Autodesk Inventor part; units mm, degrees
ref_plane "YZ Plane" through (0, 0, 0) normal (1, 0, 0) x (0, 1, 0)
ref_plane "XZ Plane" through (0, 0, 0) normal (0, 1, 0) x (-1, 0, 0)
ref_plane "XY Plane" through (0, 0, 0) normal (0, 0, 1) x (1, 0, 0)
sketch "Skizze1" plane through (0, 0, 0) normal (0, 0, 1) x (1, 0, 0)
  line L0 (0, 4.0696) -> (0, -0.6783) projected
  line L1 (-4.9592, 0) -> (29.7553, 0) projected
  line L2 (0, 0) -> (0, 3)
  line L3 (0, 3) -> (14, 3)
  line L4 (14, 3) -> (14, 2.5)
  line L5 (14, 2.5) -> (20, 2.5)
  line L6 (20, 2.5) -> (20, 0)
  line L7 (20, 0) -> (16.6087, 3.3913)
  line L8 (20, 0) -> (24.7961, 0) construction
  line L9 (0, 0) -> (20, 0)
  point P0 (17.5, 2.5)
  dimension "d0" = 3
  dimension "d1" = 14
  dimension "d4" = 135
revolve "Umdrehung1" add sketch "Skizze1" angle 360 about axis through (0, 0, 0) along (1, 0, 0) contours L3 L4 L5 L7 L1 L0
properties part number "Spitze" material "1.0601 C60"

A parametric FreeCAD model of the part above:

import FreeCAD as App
import Part
import Sketcher

V = App.Vector
Q = App.Units.Quantity

doc = App.newDocument("Part")
params = doc.addObject("Spreadsheet::Sheet", "Params")
for row, (alias, value) in enumerate([
    ("sketch1_width", "14 mm"),
    ("sketch1_height", "3 mm"),
    ("sketch1_width2", "20 mm"),
    ("sketch1_width3", "3.5 mm"),
    ("revolution_angle", "360 deg"),
], start=1):
    params.set(f"A{row}", alias)
    params.set(f"B{row}", "=" + value)
    params.setAlias(f"B{row}", alias)

body = doc.addObject("PartDesign::Body", "Body")

sketch1 = doc.addObject("Sketcher::SketchObject", "Sketch")
body.addObject(sketch1)
sketch1.AttachmentSupport = (doc.XY_Plane, [""])
sketch1.MapMode = "FlatFace"
sketch1.addGeometry(Part.LineSegment(V(14, 3, 0), V(0, 3, 0)), False)
sketch1.addGeometry(Part.LineSegment(V(0, 3, 0), V(0, 0, 0)), False)
sketch1.addGeometry(Part.LineSegment(V(0, 0, 0), V(20, 0, 0)), False)
sketch1.addGeometry(Part.LineSegment(V(20, 0, 0), V(17.5, 2.5, 0)), False)
sketch1.addGeometry(Part.LineSegment(V(17.5, 2.5, 0), V(14, 2.5, 0)), False)
sketch1.addGeometry(Part.LineSegment(V(14, 2.5, 0), V(14, 3, 0)), False)
sketch1.addConstraint(Sketcher.Constraint("Coincident", 0, 2, 1, 1))
sketch1.addConstraint(Sketcher.Constraint("Coincident", 1, 2, 2, 1))
sketch1.addConstraint(Sketcher.Constraint("Coincident", 2, 2, 3, 1))
sketch1.addConstraint(Sketcher.Constraint("Coincident", 3, 2, 4, 1))
sketch1.addConstraint(Sketcher.Constraint("Coincident", 4, 2, 5, 1))
sketch1.addConstraint(Sketcher.Constraint("Coincident", 5, 2, 0, 1))
sketch1.addConstraint(Sketcher.Constraint("Horizontal", 0))
sketch1.addConstraint(Sketcher.Constraint("Vertical", 1))
sketch1.addConstraint(Sketcher.Constraint("Horizontal", 2))
sketch1.addConstraint(Sketcher.Constraint("Horizontal", 4))
sketch1.addConstraint(Sketcher.Constraint("Vertical", 5))
sketch1.addConstraint(Sketcher.Constraint("Coincident", 1, 2, -1, 1))
sketch1.addConstraint(Sketcher.Constraint("DistanceX", 0, 2, 0, 1, 14.0))
sketch1.addConstraint(Sketcher.Constraint("DistanceY", 1, 2, 1, 1, 3.0))
sketch1.addConstraint(Sketcher.Constraint("Angle", 3, Q("135 deg")))
sketch1.addConstraint(Sketcher.Constraint("DistanceX", 2, 1, 2, 2, 20.0))
sketch1.addConstraint(Sketcher.Constraint("DistanceX", 4, 2, 4, 1, 3.5))
sketch1.setExpression("Constraints[12]", "Params.sketch1_width")
sketch1.setExpression("Constraints[13]", "Params.sketch1_height")
sketch1.setExpression("Constraints[15]", "Params.sketch1_width2")
sketch1.setExpression("Constraints[16]", "Params.sketch1_width3")
revolution = doc.addObject("PartDesign::Revolution", "Revolution")
body.addObject(revolution)
revolution.Profile = sketch1
revolution.ReferenceAxis = (sketch1, ["H_Axis"])
revolution.setExpression("Angle", "Params.revolution_angle")

doc.recompute()
